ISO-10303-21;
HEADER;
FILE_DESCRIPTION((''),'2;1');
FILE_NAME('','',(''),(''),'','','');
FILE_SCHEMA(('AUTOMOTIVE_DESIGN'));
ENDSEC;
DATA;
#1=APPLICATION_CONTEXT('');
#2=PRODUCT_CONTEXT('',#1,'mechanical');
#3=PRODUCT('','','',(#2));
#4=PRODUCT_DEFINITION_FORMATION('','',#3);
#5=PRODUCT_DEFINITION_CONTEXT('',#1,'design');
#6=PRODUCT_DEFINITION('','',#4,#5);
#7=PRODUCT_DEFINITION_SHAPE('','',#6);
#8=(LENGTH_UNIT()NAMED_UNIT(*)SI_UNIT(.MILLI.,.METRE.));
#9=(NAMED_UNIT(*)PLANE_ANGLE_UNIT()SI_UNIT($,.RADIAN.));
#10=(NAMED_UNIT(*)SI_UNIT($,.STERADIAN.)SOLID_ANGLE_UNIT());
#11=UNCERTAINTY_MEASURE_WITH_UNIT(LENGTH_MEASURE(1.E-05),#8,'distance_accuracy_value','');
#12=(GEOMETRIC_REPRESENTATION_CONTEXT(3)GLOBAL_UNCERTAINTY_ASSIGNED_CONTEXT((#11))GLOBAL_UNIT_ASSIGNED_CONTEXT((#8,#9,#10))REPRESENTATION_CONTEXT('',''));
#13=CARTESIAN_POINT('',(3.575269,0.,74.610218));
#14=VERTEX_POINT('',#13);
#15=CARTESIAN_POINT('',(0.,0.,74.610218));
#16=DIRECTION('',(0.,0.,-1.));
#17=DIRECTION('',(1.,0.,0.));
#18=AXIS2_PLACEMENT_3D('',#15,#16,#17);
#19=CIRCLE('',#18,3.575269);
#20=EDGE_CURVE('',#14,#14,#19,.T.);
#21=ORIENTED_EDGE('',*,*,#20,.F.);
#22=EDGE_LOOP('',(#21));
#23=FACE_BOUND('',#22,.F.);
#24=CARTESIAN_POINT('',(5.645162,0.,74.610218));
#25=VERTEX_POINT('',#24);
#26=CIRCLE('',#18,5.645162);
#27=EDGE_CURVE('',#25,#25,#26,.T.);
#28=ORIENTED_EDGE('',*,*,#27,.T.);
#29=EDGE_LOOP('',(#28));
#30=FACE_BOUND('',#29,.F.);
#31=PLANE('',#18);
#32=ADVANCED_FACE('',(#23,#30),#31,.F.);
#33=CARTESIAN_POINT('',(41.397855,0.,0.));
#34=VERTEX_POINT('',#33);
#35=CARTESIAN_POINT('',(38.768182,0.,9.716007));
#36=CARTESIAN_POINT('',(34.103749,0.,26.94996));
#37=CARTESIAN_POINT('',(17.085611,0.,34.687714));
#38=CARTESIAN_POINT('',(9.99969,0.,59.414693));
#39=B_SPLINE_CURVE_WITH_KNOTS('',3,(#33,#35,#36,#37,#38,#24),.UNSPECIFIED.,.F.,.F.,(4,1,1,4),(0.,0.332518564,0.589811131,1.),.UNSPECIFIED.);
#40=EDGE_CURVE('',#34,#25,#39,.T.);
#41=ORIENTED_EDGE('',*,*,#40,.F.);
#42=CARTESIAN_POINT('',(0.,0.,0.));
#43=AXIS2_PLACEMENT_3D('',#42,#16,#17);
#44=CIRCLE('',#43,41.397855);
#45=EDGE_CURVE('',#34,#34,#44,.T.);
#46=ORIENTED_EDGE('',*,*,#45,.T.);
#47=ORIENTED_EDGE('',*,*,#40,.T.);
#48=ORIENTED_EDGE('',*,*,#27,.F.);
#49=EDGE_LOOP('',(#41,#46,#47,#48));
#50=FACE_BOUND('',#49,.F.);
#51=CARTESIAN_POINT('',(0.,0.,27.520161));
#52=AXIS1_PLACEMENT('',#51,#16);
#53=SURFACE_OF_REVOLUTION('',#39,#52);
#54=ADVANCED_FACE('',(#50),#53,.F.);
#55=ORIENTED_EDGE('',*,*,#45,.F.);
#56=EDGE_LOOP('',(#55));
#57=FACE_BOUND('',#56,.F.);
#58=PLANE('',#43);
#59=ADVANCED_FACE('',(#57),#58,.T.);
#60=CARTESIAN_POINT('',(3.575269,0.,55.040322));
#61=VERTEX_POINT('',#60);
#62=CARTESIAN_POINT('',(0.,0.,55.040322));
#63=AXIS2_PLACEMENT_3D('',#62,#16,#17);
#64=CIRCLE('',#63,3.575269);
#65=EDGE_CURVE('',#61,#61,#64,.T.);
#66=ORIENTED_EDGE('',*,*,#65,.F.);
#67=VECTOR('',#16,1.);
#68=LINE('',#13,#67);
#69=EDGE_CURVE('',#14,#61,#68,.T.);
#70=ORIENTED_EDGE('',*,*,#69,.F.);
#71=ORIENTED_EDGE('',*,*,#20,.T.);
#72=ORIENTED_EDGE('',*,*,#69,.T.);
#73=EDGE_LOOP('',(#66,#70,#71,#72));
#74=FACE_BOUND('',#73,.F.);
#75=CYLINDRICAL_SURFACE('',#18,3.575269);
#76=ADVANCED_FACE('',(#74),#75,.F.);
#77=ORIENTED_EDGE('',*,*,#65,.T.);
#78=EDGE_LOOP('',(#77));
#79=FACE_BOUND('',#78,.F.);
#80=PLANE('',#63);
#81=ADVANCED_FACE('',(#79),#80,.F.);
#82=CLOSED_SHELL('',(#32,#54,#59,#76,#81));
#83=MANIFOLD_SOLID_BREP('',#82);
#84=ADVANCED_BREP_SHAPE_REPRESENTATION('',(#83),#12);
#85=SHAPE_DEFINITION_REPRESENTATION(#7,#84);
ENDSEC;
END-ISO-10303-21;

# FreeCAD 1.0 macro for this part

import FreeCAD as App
import Part
import Sketcher

doc = App.newDocument("Part")
body = doc.addObject("PartDesign::Body", "Body")

sketch1 = body.newObject("Sketcher::SketchObject", "Sketch")
sketch1.AttachmentSupport = (doc.getObject("XZ_Plane"), [""])
sketch1.MapMode = "FlatFace"
sketch1.addGeometry([
    Part.LineSegment(App.Vector(0, 55.040322, 0), App.Vector(0, 0, 0)),
    Part.LineSegment(App.Vector(0, 0, 0), App.Vector(41.397855, 0, 0)),
    Part.BSplineCurve([App.Vector(41.397855, 0, 0), App.Vector(38.768182, 9.716007, 0), App.Vector(34.103749, 26.94996, 0), App.Vector(17.085611, 34.687714, 0), App.Vector(9.99969, 59.414693, 0), App.Vector(5.645162, 74.610218, 0)], [4, 1, 1, 4], [0, 0.332518564, 0.589811131, 1], False, 3, [1, 1, 1, 1, 1, 1], False),
    Part.LineSegment(App.Vector(5.645162, 74.610218, 0), App.Vector(3.575269, 74.610218, 0)),
    Part.LineSegment(App.Vector(3.575269, 74.610218, 0), App.Vector(3.575269, 55.040322, 0)),
    Part.LineSegment(App.Vector(3.575269, 55.040322, 0), App.Vector(0, 55.040322, 0)),
], False)
sketch1.addConstraint([
    Sketcher.Constraint("Block", 2),
    Sketcher.Constraint("Coincident", 0, 2, 1, 1),
    Sketcher.Constraint("Coincident", 1, 2, 2, 1),
    Sketcher.Constraint("Coincident", 2, 2, 3, 1),
    Sketcher.Constraint("Coincident", 3, 2, 4, 1),
    Sketcher.Constraint("Coincident", 4, 2, 5, 1),
    Sketcher.Constraint("Coincident", 5, 2, 0, 1),
    Sketcher.Constraint("Vertical", 0),
    Sketcher.Constraint("Horizontal", 1),
    Sketcher.Constraint("Horizontal", 3),
    Sketcher.Constraint("Vertical", 4),
    Sketcher.Constraint("Horizontal", 5),
    Sketcher.Constraint("PointOnObject", 5, 2, -2),
    Sketcher.Constraint("DistanceX", 5, 2, 5, 1, 3.575269),
    Sketcher.Constraint("DistanceY", 0, 2, 0, 1, 55.040322),
])
revolution = body.newObject("PartDesign::Revolution", "Revolution")
revolution.Profile = sketch1
revolution.ReferenceAxis = (sketch1, ["V_Axis"])
revolution.Angle = 360

doc.recompute()
